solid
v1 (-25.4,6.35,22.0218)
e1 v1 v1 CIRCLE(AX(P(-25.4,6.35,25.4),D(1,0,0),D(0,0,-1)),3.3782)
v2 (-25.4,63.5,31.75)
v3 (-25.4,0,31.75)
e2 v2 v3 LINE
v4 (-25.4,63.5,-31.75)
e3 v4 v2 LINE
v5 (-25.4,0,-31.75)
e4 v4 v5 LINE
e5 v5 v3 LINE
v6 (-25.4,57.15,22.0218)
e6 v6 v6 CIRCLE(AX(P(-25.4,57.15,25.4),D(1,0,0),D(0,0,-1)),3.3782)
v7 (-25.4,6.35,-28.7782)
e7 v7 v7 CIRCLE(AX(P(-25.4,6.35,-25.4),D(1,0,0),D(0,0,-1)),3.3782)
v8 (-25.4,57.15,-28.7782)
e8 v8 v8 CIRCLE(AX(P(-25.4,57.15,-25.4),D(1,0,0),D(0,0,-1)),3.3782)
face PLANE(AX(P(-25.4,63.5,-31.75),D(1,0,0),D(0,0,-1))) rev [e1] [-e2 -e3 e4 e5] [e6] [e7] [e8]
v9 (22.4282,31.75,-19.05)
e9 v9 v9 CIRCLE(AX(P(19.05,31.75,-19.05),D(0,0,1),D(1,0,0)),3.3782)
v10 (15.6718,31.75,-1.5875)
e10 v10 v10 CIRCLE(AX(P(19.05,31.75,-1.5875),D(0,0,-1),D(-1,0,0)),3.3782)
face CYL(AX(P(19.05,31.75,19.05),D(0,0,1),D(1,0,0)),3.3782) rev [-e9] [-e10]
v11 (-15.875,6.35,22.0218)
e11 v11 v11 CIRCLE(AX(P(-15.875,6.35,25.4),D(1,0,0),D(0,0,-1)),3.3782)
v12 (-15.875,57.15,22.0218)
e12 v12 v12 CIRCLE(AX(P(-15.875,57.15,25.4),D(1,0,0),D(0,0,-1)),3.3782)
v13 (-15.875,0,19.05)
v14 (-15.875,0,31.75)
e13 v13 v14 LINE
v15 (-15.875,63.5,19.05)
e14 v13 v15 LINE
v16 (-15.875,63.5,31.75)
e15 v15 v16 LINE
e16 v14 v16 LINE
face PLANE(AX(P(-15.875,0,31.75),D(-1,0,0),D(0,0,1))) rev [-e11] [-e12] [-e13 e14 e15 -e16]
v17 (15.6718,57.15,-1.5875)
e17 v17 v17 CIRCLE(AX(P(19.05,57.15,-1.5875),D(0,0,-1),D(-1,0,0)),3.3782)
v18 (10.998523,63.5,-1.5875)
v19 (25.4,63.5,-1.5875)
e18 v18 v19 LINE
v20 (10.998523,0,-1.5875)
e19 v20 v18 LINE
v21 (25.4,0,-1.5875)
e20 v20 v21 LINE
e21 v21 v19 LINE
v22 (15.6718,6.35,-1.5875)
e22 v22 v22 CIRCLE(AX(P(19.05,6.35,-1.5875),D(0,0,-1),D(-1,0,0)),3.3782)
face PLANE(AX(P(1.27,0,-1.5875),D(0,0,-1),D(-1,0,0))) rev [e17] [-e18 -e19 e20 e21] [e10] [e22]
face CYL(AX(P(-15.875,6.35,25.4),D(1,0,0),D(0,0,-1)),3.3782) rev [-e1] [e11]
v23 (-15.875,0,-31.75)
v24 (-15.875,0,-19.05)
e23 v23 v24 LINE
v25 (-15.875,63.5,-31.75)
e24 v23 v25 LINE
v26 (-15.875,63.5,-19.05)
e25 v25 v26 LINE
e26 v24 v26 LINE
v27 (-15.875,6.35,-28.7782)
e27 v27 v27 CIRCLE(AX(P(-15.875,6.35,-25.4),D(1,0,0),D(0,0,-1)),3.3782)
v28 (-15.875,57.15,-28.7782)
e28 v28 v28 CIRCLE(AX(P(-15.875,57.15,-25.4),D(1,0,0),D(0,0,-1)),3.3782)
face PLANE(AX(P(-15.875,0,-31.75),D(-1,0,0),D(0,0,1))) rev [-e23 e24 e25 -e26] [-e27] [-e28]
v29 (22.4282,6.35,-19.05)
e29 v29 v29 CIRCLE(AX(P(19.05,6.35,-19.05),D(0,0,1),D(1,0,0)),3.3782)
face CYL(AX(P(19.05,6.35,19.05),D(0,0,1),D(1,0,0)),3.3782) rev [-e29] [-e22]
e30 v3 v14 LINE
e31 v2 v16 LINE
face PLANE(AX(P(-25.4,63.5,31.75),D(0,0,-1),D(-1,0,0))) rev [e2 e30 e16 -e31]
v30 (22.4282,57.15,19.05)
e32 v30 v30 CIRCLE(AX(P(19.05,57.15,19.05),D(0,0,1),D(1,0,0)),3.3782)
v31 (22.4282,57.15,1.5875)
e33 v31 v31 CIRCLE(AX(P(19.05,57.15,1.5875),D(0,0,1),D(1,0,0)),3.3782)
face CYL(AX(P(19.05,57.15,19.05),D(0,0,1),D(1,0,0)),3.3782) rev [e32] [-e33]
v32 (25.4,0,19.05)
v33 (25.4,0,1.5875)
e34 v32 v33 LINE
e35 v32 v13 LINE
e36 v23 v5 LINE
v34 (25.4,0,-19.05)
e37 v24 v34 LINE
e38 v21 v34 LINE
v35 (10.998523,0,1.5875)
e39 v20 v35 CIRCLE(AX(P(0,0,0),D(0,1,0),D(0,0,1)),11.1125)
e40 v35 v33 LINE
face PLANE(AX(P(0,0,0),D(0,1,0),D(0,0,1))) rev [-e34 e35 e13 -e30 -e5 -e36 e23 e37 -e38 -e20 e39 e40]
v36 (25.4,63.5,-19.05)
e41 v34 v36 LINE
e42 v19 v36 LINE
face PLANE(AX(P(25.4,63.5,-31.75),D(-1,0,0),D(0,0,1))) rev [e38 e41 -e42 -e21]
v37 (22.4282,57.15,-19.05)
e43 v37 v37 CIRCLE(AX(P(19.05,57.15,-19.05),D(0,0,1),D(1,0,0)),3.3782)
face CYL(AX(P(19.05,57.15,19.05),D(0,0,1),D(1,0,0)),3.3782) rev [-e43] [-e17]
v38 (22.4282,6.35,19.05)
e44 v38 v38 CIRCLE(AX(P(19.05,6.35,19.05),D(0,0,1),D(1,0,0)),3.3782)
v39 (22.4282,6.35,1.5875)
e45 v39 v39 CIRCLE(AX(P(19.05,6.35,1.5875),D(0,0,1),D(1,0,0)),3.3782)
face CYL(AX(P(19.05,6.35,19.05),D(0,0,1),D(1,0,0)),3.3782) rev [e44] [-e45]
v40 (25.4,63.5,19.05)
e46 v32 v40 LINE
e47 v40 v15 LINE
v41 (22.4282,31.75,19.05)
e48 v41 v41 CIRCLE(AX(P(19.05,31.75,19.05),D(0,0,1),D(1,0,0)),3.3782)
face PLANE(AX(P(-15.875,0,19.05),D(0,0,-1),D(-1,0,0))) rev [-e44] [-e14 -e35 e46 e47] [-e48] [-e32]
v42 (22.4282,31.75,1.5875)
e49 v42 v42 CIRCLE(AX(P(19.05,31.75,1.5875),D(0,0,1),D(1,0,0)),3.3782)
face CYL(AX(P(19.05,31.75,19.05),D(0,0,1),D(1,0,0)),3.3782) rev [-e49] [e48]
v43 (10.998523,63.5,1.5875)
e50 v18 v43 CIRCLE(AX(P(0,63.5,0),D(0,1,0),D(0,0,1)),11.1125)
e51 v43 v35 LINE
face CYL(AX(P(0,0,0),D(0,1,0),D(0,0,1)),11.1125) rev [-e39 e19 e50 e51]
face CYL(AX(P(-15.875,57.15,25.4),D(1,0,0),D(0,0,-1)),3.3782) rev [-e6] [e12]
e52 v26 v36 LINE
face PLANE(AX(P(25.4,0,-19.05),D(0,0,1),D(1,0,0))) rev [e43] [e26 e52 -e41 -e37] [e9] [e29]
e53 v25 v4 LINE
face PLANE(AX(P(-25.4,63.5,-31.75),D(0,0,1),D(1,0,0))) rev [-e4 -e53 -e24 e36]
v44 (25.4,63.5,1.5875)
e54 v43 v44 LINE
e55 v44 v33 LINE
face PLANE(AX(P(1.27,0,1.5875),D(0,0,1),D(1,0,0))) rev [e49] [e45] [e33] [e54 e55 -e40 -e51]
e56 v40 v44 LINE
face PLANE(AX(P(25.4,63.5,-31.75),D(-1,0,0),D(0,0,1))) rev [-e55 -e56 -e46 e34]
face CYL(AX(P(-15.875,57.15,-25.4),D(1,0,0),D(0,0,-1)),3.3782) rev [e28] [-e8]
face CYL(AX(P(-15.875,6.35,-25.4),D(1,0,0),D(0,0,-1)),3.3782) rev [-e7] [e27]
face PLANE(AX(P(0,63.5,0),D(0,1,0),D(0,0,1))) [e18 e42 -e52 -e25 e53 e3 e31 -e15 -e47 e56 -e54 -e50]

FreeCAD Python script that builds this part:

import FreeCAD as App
import Part
import Sketcher

V = App.Vector
Q = App.Units.Quantity

doc = App.newDocument("Part")
body = doc.addObject("PartDesign::Body", "Body")

# Sketch on XZ plane
sketch1 = doc.addObject("Sketcher::SketchObject", "Sketch")
body.addObject(sketch1)
sketch1.AttachmentSupport = (doc.XZ_Plane, [""])
sketch1.MapMode = "FlatFace"
sketch1.addGeometry(Part.LineSegment(V(-25, -32, 0), V(-25, 32, 0)), False)
sketch1.addGeometry(Part.LineSegment(V(-25, 32, 0), V(25, 32, 0)), False)
sketch1.addGeometry(Part.LineSegment(V(25, 32, 0), V(25, -32, 0)), False)
sketch1.addGeometry(Part.LineSegment(V(25, -32, 0), V(-25, -32, 0)), False)
sketch1.addConstraint(Sketcher.Constraint("Coincident", 0, 2, 1, 1))
sketch1.addConstraint(Sketcher.Constraint("Coincident", 1, 2, 2, 1))
sketch1.addConstraint(Sketcher.Constraint("Coincident", 2, 2, 3, 1))
sketch1.addConstraint(Sketcher.Constraint("Coincident", 3, 2, 0, 1))
sketch1.addConstraint(Sketcher.Constraint("Vertical", 0))
sketch1.addConstraint(Sketcher.Constraint("Horizontal", 1))
sketch1.addConstraint(Sketcher.Constraint("Vertical", 2))
sketch1.addConstraint(Sketcher.Constraint("Horizontal", 3))
sketch1.addConstraint(Sketcher.Constraint("Symmetric", 0, 2, 2, 2, -1, 1))
sketch1.addConstraint(Sketcher.Constraint("DistanceX", 1, 1, 1, 2, Q("2 in")))
sketch1.addConstraint(Sketcher.Constraint("DistanceY", 0, 1, 0, 2, Q("2.5 in")))
pad1 = doc.addObject("PartDesign::Pad", "Pad")
body.addObject(pad1)
pad1.Profile = sketch1
pad1.Length = Q("2.5 in")
pad1.Reversed = True

# Sketch on XZ plane
sketch2 = doc.addObject("Sketcher::SketchObject", "Sketch001")
body.addObject(sketch2)
sketch2.AttachmentSupport = (doc.XZ_Plane, [""])
sketch2.MapMode = "FlatFace"
sketch2.AttachmentOffset = App.Placement(V(0, 0, -2.5 * 25.4), App.Rotation())
sketch2.addGeometry(Part.Circle(V(0, 0, 0), V(0, 0, 1), 11), False)
sketch2.addConstraint(Sketcher.Constraint("Coincident", 0, 3, -1, 1))
sketch2.addConstraint(Sketcher.Constraint("Diameter", 0, Q("0.875 in")))
pocket1 = doc.addObject("PartDesign::Pocket", "Pocket")
body.addObject(pocket1)
pocket1.Profile = sketch2
pocket1.Type = "ThroughAll"
pocket1.Reversed = True

# Sketch on XZ plane
sketch3 = doc.addObject("Sketcher::SketchObject", "Sketch002")
body.addObject(sketch3)
sketch3.AttachmentSupport = (doc.XZ_Plane, [""])
sketch3.MapMode = "FlatFace"
sketch3.AttachmentOffset = App.Placement(V(0, 0, -2.5 * 25.4), App.Rotation())
sketch3.addGeometry(Part.LineSegment(V(-16, -32, 0), V(-16, -19, 0)), False)
sketch3.addGeometry(Part.LineSegment(V(-16, -19, 0), V(25, -19, 0)), False)
sketch3.addGeometry(Part.LineSegment(V(25, -19, 0), V(25, -32, 0)), False)
sketch3.addGeometry(Part.LineSegment(V(25, -32, 0), V(-16, -32, 0)), False)
sketch3.addGeometry(Part.LineSegment(V(-16, 19, 0), V(-16, 32, 0)), False)
sketch3.addGeometry(Part.LineSegment(V(-16, 32, 0), V(25, 32, 0)), False)
sketch3.addGeometry(Part.LineSegment(V(25, 32, 0), V(25, 19, 0)), False)
sketch3.addGeometry(Part.LineSegment(V(25, 19, 0), V(-16, 19, 0)), False)
sketch3.addConstraint(Sketcher.Constraint("Coincident", 0, 2, 1, 1))
sketch3.addConstraint(Sketcher.Constraint("Coincident", 1, 2, 2, 1))
sketch3.addConstraint(Sketcher.Constraint("Coincident", 2, 2, 3, 1))
sketch3.addConstraint(Sketcher.Constraint("Coincident", 3, 2, 0, 1))
sketch3.addConstraint(Sketcher.Constraint("Coincident", 4, 2, 5, 1))
sketch3.addConstraint(Sketcher.Constraint("Coincident", 5, 2, 6, 1))
sketch3.addConstraint(Sketcher.Constraint("Coincident", 6, 2, 7, 1))
sketch3.addConstraint(Sketcher.Constraint("Coincident", 7, 2, 4, 1))
sketch3.addConstraint(Sketcher.Constraint("Vertical", 0))
sketch3.addConstraint(Sketcher.Constraint("Horizontal", 1))
sketch3.addConstraint(Sketcher.Constraint("Vertical", 2))
sketch3.addConstraint(Sketcher.Constraint("Horizontal", 3))
sketch3.addConstraint(Sketcher.Constraint("Vertical", 4))
sketch3.addConstraint(Sketcher.Constraint("Horizontal", 5))
sketch3.addConstraint(Sketcher.Constraint("Vertical", 6))
sketch3.addConstraint(Sketcher.Constraint("Horizontal", 7))
sketch3.addConstraint(Sketcher.Constraint("Symmetric", 3, 2, 4, 2, -1))
sketch3.addConstraint(Sketcher.Constraint("Symmetric", 1, 2, 6, 2, -1))
sketch3.addConstraint(Sketcher.Constraint("DistanceY", 0, 1, 0, 2, Q("0.5 in")))
sketch3.addConstraint(Sketcher.Constraint("DistanceX", -1, 1, 1, 2, Q("1 in")))
sketch3.addConstraint(Sketcher.Constraint("DistanceY", 0, 2, 4, 2, Q("2 in")))
sketch3.addConstraint(Sketcher.Constraint("DistanceX", 1, 1, 1, 2, Q("1.625 in")))
pocket2 = doc.addObject("PartDesign::Pocket", "Pocket001")
body.addObject(pocket2)
pocket2.Profile = sketch3
pocket2.Type = "ThroughAll"
pocket2.Reversed = True

# Sketch on YZ plane
sketch4 = doc.addObject("Sketcher::SketchObject", "Sketch003")
body.addObject(sketch4)
sketch4.AttachmentSupport = (doc.YZ_Plane, [""])
sketch4.MapMode = "FlatFace"
sketch4.AttachmentOffset = App.Placement(V(0, 0, -0.625 * 25.4), App.Rotation())
sketch4.addGeometry(Part.Circle(V(57.1, 25.4, 0), V(0, 0, 1), 3.4), False)
sketch4.addGeometry(Part.Circle(V(6.3, -25.4, 0), V(0, 0, 1), 3.4), False)
sketch4.addGeometry(Part.Circle(V(6.3, 25.4, 0), V(0, 0, 1), 3.4), False)
sketch4.addGeometry(Part.Circle(V(57.1, -25.4, 0), V(0, 0, 1), 3.4), False)
sketch4.addConstraint(Sketcher.Constraint("Equal", 0, 1))
sketch4.addConstraint(Sketcher.Constraint("Equal", 1, 2))
sketch4.addConstraint(Sketcher.Constraint("Equal", 2, 3))
sketch4.addConstraint(Sketcher.Constraint("Symmetric", 1, 3, 2, 3, -1))
sketch4.addConstraint(Sketcher.Constraint("Symmetric", 0, 3, 3, 3, -1))
sketch4.addConstraint(Sketcher.Constraint("Horizontal", 0, 3, 2, 3))
sketch4.addConstraint(Sketcher.Constraint("Diameter", 0, Q("0.266 in")))
sketch4.addConstraint(Sketcher.Constraint("DistanceY", -1, 1, 0, 3, Q("1 in")))
sketch4.addConstraint(Sketcher.Constraint("DistanceX", 1, 3, 0, 3, Q("2 in")))
sketch4.addConstraint(Sketcher.Constraint("DistanceX", -1, 1, 0, 3, Q("2.25 in")))
doc.recompute()
hole = doc.addObject("PartDesign::Hole", "Hole")
body.addObject(hole)
hole.Profile = sketch4
hole.ThreadType = "None"
hole.Diameter = Q("0.266 in")
hole.DepthType = "Dimension"
hole.Depth = Q("0.38 in")
hole.DrillPoint = "Angled"
hole.DrillPointAngle = 118

# Sketch on YZ plane
sketch5 = doc.addObject("Sketcher::SketchObject", "Sketch004")
body.addObject(sketch5)
sketch5.AttachmentSupport = (doc.YZ_Plane, [""])
sketch5.MapMode = "FlatFace"
sketch5.AttachmentOffset = App.Placement(V(0, 0, 1 * 25.4), App.Rotation())
sketch5.addGeometry(Part.LineSegment(V(63.5, 1.6, 0), V(0, 1.6, 0)), False)
sketch5.addGeometry(Part.LineSegment(V(0, 1.6, 0), V(0, -1.6, 0)), False)
sketch5.addGeometry(Part.LineSegment(V(0, -1.6, 0), V(63.5, -1.6, 0)), False)
sketch5.addGeometry(Part.LineSegment(V(63.5, -1.6, 0), V(63.5, 1.6, 0)), False)
sketch5.addConstraint(Sketcher.Constraint("Coincident", 0, 2, 1, 1))
sketch5.addConstraint(Sketcher.Constraint("Coincident", 1, 2, 2, 1))
sketch5.addConstraint(Sketcher.Constraint("Coincident", 2, 2, 3, 1))
sketch5.addConstraint(Sketcher.Constraint("Coincident", 3, 2, 0, 1))
sketch5.addConstraint(Sketcher.Constraint("Horizontal", 0))
sketch5.addConstraint(Sketcher.Constraint("Vertical", 1))
sketch5.addConstraint(Sketcher.Constraint("Horizontal", 2))
sketch5.addConstraint(Sketcher.Constraint("Vertical", 3))
sketch5.addConstraint(Sketcher.Constraint("Symmetric", 0, 2, 1, 2, -1, 1))
sketch5.addConstraint(Sketcher.Constraint("DistanceX", 0, 2, 0, 1, Q("2.5 in")))
sketch5.addConstraint(Sketcher.Constraint("DistanceY", 1, 2, 1, 1, Q("0.125 in")))
pocket3 = doc.addObject("PartDesign::Pocket", "Pocket002")
body.addObject(pocket3)
pocket3.Profile = sketch5
pocket3.Length = Q("0.95 in")

# Sketch on XY plane
sketch6 = doc.addObject("Sketcher::SketchObject", "Sketch005")
body.addObject(sketch6)
sketch6.AttachmentSupport = (doc.XY_Plane, [""])
sketch6.MapMode = "FlatFace"
sketch6.AttachmentOffset = App.Placement(V(0, 0, 0.75 * 25.4), App.Rotation())
sketch6.addGeometry(Part.Circle(V(19.1, 57.1, 0), V(0, 0, 1), 3.4), False)
sketch6.addGeometry(Part.Circle(V(19.1, 31.8, 0), V(0, 0, 1), 3.4), False)
sketch6.addGeometry(Part.Circle(V(19.1, 6.3, 0), V(0, 0, 1), 3.4), False)
sketch6.addConstraint(Sketcher.Constraint("Equal", 0, 1))
sketch6.addConstraint(Sketcher.Constraint("Equal", 1, 2))
sketch6.addConstraint(Sketcher.Constraint("Vertical", 0, 3, 1, 3))
sketch6.addConstraint(Sketcher.Constraint("Vertical", 1, 3, 2, 3))
sketch6.addConstraint(Sketcher.Constraint("Diameter", 0, Q("0.266 in")))
sketch6.addConstraint(Sketcher.Constraint("DistanceY", 1, 3, 0, 3, Q("1 in")))
sketch6.addConstraint(Sketcher.Constraint("DistanceY", 2, 3, 1, 3, Q("1 in")))
sketch6.addConstraint(Sketcher.Constraint("DistanceX", -1, 1, 0, 3, Q("0.75 in")))
sketch6.addConstraint(Sketcher.Constraint("DistanceY", -1, 1, 0, 3, Q("2.25 in")))
doc.recompute()
hole2 = doc.addObject("PartDesign::Hole", "Hole001")
body.addObject(hole2)
hole2.Profile = sketch6
hole2.ThreadType = "None"
hole2.Diameter = Q("0.266 in")
hole2.DepthType = "ThroughAll"

doc.recompute()
